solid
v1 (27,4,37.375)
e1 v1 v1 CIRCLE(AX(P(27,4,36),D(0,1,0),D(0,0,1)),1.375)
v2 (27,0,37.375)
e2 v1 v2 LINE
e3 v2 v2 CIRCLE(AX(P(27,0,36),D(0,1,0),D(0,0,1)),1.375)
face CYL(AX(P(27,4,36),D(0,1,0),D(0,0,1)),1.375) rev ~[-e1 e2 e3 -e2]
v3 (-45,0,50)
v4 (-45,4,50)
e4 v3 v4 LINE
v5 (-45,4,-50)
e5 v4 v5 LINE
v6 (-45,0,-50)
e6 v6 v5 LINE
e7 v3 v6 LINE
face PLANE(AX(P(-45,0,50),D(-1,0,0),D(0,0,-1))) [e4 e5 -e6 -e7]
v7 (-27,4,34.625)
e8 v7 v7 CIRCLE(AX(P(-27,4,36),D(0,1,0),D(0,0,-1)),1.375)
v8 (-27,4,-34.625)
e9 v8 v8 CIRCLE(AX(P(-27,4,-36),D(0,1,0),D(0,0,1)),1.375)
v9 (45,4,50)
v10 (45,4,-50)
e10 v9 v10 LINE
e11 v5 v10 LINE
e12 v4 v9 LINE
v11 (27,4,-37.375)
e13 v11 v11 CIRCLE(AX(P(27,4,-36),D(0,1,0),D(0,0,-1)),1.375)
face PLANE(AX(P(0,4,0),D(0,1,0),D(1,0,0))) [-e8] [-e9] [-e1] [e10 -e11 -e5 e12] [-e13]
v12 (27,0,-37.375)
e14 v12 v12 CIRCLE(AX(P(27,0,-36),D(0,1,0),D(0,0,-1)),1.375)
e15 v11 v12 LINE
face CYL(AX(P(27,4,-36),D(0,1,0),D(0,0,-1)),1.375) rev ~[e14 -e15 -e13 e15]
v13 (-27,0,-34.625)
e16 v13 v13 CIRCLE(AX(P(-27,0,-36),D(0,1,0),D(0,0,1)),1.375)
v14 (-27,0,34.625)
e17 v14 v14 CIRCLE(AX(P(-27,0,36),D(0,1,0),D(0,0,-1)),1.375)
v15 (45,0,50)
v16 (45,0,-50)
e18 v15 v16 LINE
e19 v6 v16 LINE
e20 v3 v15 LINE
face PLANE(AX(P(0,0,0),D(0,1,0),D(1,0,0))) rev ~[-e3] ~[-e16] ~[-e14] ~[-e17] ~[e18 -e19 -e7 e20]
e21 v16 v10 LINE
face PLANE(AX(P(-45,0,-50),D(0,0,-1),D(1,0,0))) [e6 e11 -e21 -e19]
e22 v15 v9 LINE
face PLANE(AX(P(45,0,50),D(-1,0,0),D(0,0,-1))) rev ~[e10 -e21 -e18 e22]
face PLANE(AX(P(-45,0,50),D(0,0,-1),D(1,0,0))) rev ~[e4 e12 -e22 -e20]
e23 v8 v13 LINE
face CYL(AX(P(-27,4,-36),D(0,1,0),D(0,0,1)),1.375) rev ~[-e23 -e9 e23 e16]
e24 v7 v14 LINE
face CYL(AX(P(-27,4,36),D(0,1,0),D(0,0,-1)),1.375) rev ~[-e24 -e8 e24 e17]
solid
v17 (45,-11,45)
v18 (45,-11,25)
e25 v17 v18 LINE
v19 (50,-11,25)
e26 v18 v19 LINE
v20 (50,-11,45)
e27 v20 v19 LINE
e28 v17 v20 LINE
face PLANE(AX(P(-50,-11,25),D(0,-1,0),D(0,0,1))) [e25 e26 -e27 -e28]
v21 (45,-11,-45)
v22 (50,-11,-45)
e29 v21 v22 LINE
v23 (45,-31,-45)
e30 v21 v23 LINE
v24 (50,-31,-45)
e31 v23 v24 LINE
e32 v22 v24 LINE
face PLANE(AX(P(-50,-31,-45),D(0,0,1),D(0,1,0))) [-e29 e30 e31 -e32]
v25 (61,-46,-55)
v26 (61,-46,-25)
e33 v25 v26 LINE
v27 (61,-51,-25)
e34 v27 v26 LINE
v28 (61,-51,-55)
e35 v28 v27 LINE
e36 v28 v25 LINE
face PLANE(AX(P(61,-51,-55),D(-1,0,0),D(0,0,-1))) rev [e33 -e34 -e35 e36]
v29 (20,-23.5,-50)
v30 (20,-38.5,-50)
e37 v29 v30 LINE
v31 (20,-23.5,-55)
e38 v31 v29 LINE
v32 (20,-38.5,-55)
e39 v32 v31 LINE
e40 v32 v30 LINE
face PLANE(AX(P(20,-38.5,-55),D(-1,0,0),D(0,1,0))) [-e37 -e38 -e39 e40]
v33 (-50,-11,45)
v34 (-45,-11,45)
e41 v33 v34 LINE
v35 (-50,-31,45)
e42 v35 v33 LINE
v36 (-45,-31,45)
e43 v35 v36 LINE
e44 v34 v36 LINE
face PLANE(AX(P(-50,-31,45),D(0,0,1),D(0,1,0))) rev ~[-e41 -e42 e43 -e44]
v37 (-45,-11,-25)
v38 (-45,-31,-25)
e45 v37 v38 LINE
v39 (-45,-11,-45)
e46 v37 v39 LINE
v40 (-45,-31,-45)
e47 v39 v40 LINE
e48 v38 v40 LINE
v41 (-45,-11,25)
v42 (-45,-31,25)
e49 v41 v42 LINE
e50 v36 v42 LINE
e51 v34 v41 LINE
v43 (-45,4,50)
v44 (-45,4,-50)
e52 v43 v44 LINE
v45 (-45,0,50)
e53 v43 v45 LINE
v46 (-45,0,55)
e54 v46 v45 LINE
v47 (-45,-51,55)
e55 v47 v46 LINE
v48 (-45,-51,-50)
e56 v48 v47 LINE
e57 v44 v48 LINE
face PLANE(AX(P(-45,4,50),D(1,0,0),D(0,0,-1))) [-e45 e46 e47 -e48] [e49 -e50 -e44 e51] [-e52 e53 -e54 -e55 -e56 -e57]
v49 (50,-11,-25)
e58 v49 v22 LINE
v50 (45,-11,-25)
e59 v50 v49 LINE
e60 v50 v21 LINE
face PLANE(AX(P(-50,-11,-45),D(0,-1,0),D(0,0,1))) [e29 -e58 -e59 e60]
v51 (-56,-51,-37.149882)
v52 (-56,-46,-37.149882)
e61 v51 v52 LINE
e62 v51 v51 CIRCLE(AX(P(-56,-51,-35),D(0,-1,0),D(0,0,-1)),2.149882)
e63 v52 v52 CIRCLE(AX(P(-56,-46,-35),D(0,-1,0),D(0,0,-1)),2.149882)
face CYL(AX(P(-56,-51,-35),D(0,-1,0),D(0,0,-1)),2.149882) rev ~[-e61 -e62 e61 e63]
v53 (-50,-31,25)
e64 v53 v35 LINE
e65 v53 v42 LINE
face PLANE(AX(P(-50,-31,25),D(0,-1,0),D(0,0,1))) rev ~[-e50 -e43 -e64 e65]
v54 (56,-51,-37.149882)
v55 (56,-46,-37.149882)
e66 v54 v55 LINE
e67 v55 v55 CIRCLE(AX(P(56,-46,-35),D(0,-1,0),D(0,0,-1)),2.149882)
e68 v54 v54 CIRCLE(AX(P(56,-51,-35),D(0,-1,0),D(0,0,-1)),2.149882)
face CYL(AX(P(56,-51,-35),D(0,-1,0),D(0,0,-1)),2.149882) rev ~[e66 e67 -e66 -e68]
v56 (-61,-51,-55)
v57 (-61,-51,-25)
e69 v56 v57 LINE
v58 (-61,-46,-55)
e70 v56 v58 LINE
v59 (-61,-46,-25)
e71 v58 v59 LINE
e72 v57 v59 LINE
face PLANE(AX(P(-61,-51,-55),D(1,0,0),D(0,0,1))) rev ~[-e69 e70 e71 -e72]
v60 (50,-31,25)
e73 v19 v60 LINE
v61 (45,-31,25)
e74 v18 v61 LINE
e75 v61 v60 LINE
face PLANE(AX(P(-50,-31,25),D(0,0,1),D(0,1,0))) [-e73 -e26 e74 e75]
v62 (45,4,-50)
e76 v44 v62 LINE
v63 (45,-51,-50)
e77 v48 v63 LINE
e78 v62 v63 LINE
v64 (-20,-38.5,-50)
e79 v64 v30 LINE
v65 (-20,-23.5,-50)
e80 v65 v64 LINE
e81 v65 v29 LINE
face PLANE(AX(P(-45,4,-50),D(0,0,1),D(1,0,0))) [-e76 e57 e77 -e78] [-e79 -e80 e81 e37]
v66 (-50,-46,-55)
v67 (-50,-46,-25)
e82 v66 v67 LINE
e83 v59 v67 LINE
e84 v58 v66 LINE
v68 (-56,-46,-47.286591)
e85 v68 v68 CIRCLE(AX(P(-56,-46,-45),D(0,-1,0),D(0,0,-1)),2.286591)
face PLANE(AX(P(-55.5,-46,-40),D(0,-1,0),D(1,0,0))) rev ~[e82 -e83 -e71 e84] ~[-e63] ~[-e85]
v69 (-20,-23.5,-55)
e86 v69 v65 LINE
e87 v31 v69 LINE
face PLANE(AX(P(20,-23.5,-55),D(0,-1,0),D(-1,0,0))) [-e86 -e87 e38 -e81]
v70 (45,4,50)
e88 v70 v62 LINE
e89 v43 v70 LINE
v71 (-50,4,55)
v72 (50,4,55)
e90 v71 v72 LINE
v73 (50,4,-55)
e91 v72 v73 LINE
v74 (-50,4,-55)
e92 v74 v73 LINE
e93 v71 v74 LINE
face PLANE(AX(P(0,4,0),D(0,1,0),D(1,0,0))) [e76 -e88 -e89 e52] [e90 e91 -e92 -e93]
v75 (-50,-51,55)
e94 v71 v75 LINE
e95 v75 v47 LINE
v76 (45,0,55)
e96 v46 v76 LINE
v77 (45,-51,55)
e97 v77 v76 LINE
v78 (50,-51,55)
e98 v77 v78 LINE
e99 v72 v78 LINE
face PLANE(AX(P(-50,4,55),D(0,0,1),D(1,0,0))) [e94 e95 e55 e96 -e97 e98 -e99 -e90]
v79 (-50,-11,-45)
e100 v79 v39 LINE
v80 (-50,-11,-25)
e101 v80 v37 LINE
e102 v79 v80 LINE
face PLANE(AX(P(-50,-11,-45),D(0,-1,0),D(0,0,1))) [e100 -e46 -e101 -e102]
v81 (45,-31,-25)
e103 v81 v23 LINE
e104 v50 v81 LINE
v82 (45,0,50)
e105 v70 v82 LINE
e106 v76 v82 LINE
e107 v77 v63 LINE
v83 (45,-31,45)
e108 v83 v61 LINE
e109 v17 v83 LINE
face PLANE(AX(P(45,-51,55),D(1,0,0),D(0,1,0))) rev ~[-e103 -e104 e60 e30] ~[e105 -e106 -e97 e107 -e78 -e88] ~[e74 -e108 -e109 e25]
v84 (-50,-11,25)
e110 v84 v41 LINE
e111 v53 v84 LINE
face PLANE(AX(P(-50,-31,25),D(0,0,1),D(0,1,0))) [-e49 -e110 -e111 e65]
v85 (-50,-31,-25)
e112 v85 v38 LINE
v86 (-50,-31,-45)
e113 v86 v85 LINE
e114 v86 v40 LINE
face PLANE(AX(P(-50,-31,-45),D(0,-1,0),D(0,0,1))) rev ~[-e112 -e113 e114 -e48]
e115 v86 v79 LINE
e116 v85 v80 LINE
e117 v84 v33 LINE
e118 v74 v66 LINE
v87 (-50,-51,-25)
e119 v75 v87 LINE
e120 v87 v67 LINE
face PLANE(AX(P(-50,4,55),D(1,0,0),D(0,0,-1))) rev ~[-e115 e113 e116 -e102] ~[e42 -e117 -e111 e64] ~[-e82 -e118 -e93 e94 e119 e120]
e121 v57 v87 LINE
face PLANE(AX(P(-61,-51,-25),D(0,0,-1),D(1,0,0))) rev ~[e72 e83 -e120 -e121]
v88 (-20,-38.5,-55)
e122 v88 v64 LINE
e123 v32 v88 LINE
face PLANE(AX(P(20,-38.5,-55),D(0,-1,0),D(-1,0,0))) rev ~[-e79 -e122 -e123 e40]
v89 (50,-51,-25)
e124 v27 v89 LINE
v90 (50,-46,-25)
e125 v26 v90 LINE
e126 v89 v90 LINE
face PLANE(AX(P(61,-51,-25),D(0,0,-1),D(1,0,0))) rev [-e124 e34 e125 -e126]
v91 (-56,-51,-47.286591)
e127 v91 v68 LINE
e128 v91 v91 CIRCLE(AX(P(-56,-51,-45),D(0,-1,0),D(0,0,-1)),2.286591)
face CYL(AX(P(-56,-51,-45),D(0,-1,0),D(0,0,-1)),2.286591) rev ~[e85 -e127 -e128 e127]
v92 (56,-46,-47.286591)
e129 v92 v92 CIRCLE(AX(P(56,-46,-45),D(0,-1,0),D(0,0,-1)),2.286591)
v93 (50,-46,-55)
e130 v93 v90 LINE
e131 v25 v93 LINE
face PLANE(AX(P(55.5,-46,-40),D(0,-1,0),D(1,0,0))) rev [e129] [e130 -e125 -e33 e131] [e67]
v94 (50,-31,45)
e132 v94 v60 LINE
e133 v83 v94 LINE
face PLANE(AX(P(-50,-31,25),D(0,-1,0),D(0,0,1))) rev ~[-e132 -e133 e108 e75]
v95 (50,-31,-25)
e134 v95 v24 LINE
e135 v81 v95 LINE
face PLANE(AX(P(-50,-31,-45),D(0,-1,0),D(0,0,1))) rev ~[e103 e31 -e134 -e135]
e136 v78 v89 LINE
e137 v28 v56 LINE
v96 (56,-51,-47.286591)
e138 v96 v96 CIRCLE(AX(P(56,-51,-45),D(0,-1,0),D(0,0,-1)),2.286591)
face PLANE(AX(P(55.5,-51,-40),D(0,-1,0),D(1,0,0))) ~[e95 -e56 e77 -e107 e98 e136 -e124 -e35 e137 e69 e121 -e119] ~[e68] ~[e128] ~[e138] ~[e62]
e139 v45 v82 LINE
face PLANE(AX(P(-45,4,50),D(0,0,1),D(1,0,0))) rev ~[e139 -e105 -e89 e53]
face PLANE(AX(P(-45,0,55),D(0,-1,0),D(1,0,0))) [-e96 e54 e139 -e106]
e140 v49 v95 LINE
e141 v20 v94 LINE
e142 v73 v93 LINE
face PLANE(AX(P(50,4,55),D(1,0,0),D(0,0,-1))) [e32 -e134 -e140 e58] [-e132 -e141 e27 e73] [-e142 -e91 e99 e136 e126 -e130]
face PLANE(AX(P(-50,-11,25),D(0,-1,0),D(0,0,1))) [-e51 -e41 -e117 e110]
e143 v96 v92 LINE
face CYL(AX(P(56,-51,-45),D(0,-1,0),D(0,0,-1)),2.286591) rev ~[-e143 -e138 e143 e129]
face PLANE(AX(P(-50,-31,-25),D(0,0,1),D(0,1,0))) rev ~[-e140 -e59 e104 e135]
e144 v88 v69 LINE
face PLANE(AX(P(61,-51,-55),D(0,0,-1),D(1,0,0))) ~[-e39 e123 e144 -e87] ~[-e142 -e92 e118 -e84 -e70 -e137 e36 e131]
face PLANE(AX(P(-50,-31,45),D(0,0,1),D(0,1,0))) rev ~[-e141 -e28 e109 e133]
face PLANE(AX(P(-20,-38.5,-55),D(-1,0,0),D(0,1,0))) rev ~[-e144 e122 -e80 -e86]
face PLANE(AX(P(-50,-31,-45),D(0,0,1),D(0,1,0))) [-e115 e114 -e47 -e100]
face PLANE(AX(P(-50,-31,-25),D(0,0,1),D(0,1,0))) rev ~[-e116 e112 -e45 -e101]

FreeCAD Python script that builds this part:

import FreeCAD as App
import Part
import Sketcher

V = App.Vector
Q = App.Units.Quantity


def add_polygon(sketch, points):
    """Adds a closed chain of lines whose ends are joined by coincident constraints."""
    first, n = sketch.GeometryCount, len(points)
    for a, b in zip(points, points[1:] + points[:1]):
        sketch.addGeometry(Part.LineSegment(App.Vector(*a, 0), App.Vector(*b, 0)), False)
    for i in range(n):
        sketch.addConstraint(Sketcher.Constraint("Coincident", first + i, 2, first + (i + 1) % n, 1))

doc = App.newDocument("Part")
body = doc.addObject("PartDesign::Body", "Body")

sketch1 = doc.addObject("Sketcher::SketchObject", "Sketch")
body.addObject(sketch1)
sketch1.AttachmentSupport = (doc.XZ_Plane, [""])
sketch1.MapMode = "FlatFace"
add_polygon(sketch1, [(-45, -50), (-45, 50), (45, 50), (45, -50)])
sketch1.addConstraint([
    Sketcher.Constraint("Vertical", 0),
    Sketcher.Constraint("Horizontal", 1),
    Sketcher.Constraint("Vertical", 2),
    Sketcher.Constraint("Horizontal", 3),
    Sketcher.Constraint("Symmetric", 0, 2, 2, 2, -1, 1),
    Sketcher.Constraint("DistanceX", 1, 1, 1, 2, Q("90 mm")),
    Sketcher.Constraint("DistanceY", 0, 1, 0, 2, Q("100 mm")),
])
pad1 = doc.addObject("PartDesign::Pad", "Pad")
body.addObject(pad1)
pad1.Profile = sketch1
pad1.Length = 4
pad1.Reversed = True

sketch2 = doc.addObject("Sketcher::SketchObject", "Sketch001")
body.addObject(sketch2)
sketch2.AttachmentSupport = (doc.XZ_Plane, [""])
sketch2.MapMode = "FlatFace"
sketch2.AttachmentOffset = App.Placement(V(0, 0, -4), App.Rotation())
sketch2.addGeometry([
    Part.Circle(V(-27, -36, 0), V(0, 0, 1), 1.4),
    Part.Circle(V(27, -36, 0), V(0, 0, 1), 1.4),
    Part.Circle(V(27, 36, 0), V(0, 0, 1), 1.4),
    Part.Circle(V(-27, 36, 0), V(0, 0, 1), 1.4),
], False)
sketch2.addConstraint([
    Sketcher.Constraint("Equal", 0, 1),
    Sketcher.Constraint("Equal", 1, 2),
    Sketcher.Constraint("Equal", 2, 3),
    Sketcher.Constraint("Symmetric", 0, 3, 2, 3, -1, 1),
    Sketcher.Constraint("Symmetric", 1, 3, 3, 3, -1, 1),
    Sketcher.Constraint("Symmetric", 0, 3, 1, 3, -2),
    Sketcher.Constraint("Diameter", 0, Q("2.75 mm")),
    Sketcher.Constraint("DistanceX", 0, 3, -1, 1, Q("27 mm")),
    Sketcher.Constraint("DistanceY", 0, 3, -1, 1, Q("36 mm")),
])
pocket1 = doc.addObject("PartDesign::Pocket", "Pocket")
body.addObject(pocket1)
pocket1.Profile = sketch2
pocket1.Length = 4
pocket1.Reversed = True
body2 = doc.addObject("PartDesign::Body", "Body001")

sketch3 = doc.addObject("Sketcher::SketchObject", "Sketch002")
body2.addObject(sketch3)
sketch3.AttachmentSupport = (doc.getObject("XZ_Plane001"), [""])
sketch3.MapMode = "FlatFace"
sketch3.AttachmentOffset = App.Placement(V(0, 0, -4), App.Rotation())
add_polygon(sketch3, [(-50, -55), (-50, 55), (50, 55), (50, -55)])
add_polygon(sketch3, [(45, 50), (-45, 50), (-45, -50), (45, -50)])
sketch3.addConstraint([
    Sketcher.Constraint("Vertical", 0),
    Sketcher.Constraint("Horizontal", 1),
    Sketcher.Constraint("Vertical", 2),
    Sketcher.Constraint("Horizontal", 3),
    Sketcher.Constraint("Horizontal", 4),
    Sketcher.Constraint("Vertical", 5),
    Sketcher.Constraint("Horizontal", 6),
    Sketcher.Constraint("Vertical", 7),
    Sketcher.Constraint("Symmetric", 0, 2, 2, 2, -1, 1),
    Sketcher.Constraint("Symmetric", 4, 2, 6, 2, -1, 1),
    Sketcher.Constraint("Equal", 3, 5),
    Sketcher.Constraint("DistanceX", 1, 1, 1, 2, Q("100 mm")),
    Sketcher.Constraint("DistanceX", 4, 2, 4, 1, Q("90 mm")),
    Sketcher.Constraint("DistanceY", 0, 1, 0, 2, Q("110 mm")),
])
pad2 = doc.addObject("PartDesign::Pad", "Pad001")
body2.addObject(pad2)
pad2.Profile = sketch3
pad2.Length = 55

sketch4 = doc.addObject("Sketcher::SketchObject", "Sketch003")
body2.addObject(sketch4)
sketch4.AttachmentSupport = (doc.getObject("XZ_Plane001"), [""])
sketch4.MapMode = "FlatFace"
sketch4.AttachmentOffset = App.Placement(V(0, 0, 51), App.Rotation())
add_polygon(sketch4, [(-61, -25), (-61, -55), (-50, -55), (-50, -25)])
sketch4.addConstraint([
    Sketcher.Constraint("Vertical", 0),
    Sketcher.Constraint("Horizontal", 1),
    Sketcher.Constraint("Vertical", 2),
    Sketcher.Constraint("Horizontal", 3),
    Sketcher.Constraint("DistanceX", 1, 1, 1, 2, Q("11 mm")),
    Sketcher.Constraint("DistanceY", 0, 2, 0, 1, Q("30 mm")),
    Sketcher.Constraint("DistanceX", 0, 2, -1, 1, Q("61 mm")),
    Sketcher.Constraint("DistanceY", 0, 2, -1, 1, Q("55 mm")),
])
pad3 = doc.addObject("PartDesign::Pad", "Pad002")
body2.addObject(pad3)
pad3.Profile = sketch4
pad3.Length = 5
pad3.Reversed = True
doc.recompute()

mirrored = doc.addObject("PartDesign::Mirrored", "Mirrored")
body2.addObject(mirrored)
mirrored.Originals = [pad3]
mirrored.MirrorPlane = (doc.getObject("YZ_Plane001"), [""])
body2.Tip = mirrored

sketch5 = doc.addObject("Sketcher::SketchObject", "Sketch004")
body2.addObject(sketch5)
sketch5.AttachmentSupport = (doc.getObject("XZ_Plane001"), [""])
sketch5.MapMode = "FlatFace"
sketch5.AttachmentOffset = App.Placement(V(0, 0, 51), App.Rotation())
sketch5.addGeometry([
    Part.Circle(V(-56, -45, 0), V(0, 0, 1), 2.3),
    Part.Circle(V(-56, -35, 0), V(0, 0, 1), 2.1),
    Part.Circle(V(56, -45, 0), V(0, 0, 1), 2.3),
    Part.Circle(V(56, -35, 0), V(0, 0, 1), 2.1),
], False)
sketch5.addConstraint([
    Sketcher.Constraint("Equal", 0, 2),
    Sketcher.Constraint("Equal", 1, 3),
    Sketcher.Constraint("Symmetric", 0, 3, 2, 3, -2),
    Sketcher.Constraint("Symmetric", 1, 3, 3, 3, -2),
    Sketcher.Constraint("Vertical", 0, 3, 1, 3),
    Sketcher.Constraint("DistanceX", 0, 3, -1, 1, Q("56 mm")),
    Sketcher.Constraint("DistanceY", 0, 3, -1, 1, Q("45 mm")),
    Sketcher.Constraint("DistanceY", 1, 3, -1, 1, Q("35 mm")),
    Sketcher.Constraint("Diameter", 0, Q("4.573181 mm")),
    Sketcher.Constraint("Diameter", 1, Q("4.299763 mm")),
])
pocket2 = doc.addObject("PartDesign::Pocket", "Pocket001")
body2.addObject(pocket2)
pocket2.Profile = sketch5
pocket2.Type = "ThroughAll"

sketch6 = doc.addObject("Sketcher::SketchObject", "Sketch005")
body2.addObject(sketch6)
sketch6.AttachmentSupport = (doc.getObject("XY_Plane001"), [""])
sketch6.MapMode = "FlatFace"
sketch6.AttachmentOffset = App.Placement(V(0, 0, 55), App.Rotation())
add_polygon(sketch6, [(-45, 0), (-45, -51), (45, -51), (45, 0)])
sketch6.addConstraint([
    Sketcher.Constraint("Vertical", 0),
    Sketcher.Constraint("Horizontal", 1),
    Sketcher.Constraint("Vertical", 2),
    Sketcher.Constraint("Horizontal", 3),
    Sketcher.Constraint("Symmetric", 2, 2, 3, 2, -1, 1),
    Sketcher.Constraint("DistanceX", 1, 1, 1, 2, Q("90 mm")),
    Sketcher.Constraint("DistanceY", 0, 2, 0, 1, Q("51 mm")),
])
pocket3 = doc.addObject("PartDesign::Pocket", "Pocket002")
body2.addObject(pocket3)
pocket3.Profile = sketch6
pocket3.Length = 10

sketch7 = doc.addObject("Sketcher::SketchObject", "Sketch006")
body2.addObject(sketch7)
sketch7.AttachmentSupport = (doc.getObject("YZ_Plane001"), [""])
sketch7.MapMode = "FlatFace"
sketch7.AttachmentOffset = App.Placement(V(0, 0, -50), App.Rotation())
add_polygon(sketch7, [(-11, -45), (-31, -45), (-31, -25), (-11, -25)])
add_polygon(sketch7, [(-11, 25), (-31, 25), (-31, 45), (-11, 45)])
sketch7.addConstraint([
    Sketcher.Constraint("Horizontal", 0),
    Sketcher.Constraint("Vertical", 1),
    Sketcher.Constraint("Horizontal", 2),
    Sketcher.Constraint("Vertical", 3),
    Sketcher.Constraint("Horizontal", 4),
    Sketcher.Constraint("Vertical", 5),
    Sketcher.Constraint("Horizontal", 6),
    Sketcher.Constraint("Vertical", 7),
    Sketcher.Constraint("Symmetric", 1, 2, 4, 2, -1),
    Sketcher.Constraint("Symmetric", 3, 2, 6, 2, -1),
    Sketcher.Constraint("Equal", 6, 1),
    Sketcher.Constraint("DistanceX", 0, 2, 0, 1, Q("20 mm")),
    Sketcher.Constraint("DistanceX", 0, 2, -1, 1, Q("31 mm")),
    Sketcher.Constraint("DistanceY", 0, 2, -1, 1, Q("45 mm")),
])
pocket4 = doc.addObject("PartDesign::Pocket", "Pocket003")
body2.addObject(pocket4)
pocket4.Profile = sketch7
pocket4.Type = "ThroughAll"
pocket4.Reversed = True

sketch8 = doc.addObject("Sketcher::SketchObject", "Sketch007")
body2.addObject(sketch8)
sketch8.AttachmentSupport = (doc.getObject("XY_Plane001"), [""])
sketch8.MapMode = "FlatFace"
sketch8.AttachmentOffset = App.Placement(V(0, 0, -55), App.Rotation())
add_polygon(sketch8, [(20, -24), (20, -38), (-20, -38), (-20, -24)])
sketch8.addConstraint([
    Sketcher.Constraint("Vertical", 0),
    Sketcher.Constraint("Horizontal", 1),
    Sketcher.Constraint("Vertical", 2),
    Sketcher.Constraint("Horizontal", 3),
    Sketcher.Constraint("DistanceX", 1, 2, 1, 1, Q("40 mm")),
    Sketcher.Constraint("DistanceY", 0, 2, 0, 1, Q("15 mm")),
    Sketcher.Constraint("DistanceX", -1, 1, 0, 2, Q("20 mm")),
    Sketcher.Constraint("DistanceY", 0, 2, -1, 1, Q("38.5 mm")),
])
pocket5 = doc.addObject("PartDesign::Pocket", "Pocket004")
body2.addObject(pocket5)
pocket5.Profile = sketch8
pocket5.Type = "ThroughAll"
pocket5.Reversed = True

doc.recompute()
